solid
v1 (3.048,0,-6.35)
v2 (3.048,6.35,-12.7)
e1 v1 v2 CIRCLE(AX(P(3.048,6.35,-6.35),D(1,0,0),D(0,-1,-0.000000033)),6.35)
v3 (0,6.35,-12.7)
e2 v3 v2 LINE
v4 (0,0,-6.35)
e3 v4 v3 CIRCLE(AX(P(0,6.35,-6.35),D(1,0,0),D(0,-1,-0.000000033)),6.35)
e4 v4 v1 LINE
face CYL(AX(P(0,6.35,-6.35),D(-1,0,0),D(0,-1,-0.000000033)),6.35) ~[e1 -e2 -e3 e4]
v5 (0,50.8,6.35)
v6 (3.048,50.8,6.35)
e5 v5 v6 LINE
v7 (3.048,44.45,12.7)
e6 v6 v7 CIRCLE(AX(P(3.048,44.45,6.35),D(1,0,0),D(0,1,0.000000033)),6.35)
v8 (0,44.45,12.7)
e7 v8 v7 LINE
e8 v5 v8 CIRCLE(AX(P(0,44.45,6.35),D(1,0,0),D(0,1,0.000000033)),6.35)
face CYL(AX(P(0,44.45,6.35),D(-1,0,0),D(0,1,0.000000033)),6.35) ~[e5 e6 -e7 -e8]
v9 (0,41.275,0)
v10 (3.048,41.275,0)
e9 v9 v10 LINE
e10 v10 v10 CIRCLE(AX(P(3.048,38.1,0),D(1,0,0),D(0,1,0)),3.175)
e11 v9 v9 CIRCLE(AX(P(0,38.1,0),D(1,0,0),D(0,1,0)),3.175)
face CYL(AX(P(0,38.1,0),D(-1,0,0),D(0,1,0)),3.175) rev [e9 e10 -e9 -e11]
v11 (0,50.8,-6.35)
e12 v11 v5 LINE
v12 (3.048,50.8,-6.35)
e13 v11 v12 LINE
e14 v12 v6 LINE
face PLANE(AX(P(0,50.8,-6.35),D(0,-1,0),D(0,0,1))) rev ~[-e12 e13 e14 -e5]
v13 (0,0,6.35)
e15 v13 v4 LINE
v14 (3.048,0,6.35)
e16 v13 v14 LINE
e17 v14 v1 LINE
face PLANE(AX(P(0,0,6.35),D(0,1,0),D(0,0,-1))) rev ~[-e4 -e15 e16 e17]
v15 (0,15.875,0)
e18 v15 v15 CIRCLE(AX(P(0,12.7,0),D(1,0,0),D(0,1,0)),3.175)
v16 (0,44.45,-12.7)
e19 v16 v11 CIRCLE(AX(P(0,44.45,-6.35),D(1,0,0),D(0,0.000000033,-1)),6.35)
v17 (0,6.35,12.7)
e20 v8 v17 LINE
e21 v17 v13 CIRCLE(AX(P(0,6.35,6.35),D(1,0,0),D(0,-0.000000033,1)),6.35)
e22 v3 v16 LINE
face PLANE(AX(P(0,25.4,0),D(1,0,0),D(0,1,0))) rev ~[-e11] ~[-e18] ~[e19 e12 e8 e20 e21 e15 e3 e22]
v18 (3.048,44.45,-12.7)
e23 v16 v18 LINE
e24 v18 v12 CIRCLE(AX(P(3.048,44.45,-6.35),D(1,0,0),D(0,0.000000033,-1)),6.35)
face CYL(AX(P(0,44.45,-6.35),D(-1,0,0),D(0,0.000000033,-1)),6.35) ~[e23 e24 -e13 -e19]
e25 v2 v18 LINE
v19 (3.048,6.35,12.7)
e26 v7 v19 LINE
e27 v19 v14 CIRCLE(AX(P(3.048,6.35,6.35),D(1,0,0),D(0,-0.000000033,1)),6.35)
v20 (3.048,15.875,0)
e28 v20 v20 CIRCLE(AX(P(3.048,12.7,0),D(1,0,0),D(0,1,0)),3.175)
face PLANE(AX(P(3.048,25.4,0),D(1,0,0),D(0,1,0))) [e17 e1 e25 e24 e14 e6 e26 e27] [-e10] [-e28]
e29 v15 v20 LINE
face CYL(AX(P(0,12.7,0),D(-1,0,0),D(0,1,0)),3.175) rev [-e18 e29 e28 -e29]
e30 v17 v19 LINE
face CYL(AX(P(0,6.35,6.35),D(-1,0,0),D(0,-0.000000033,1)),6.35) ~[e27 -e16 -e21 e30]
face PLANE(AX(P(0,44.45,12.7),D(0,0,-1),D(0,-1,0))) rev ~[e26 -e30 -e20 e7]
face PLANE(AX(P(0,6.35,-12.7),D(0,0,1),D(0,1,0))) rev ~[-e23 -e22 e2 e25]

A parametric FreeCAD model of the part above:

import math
import FreeCAD as App
import Part
import Sketcher
Q = App.Units.Quantity

doc = App.newDocument("Part")
body = doc.addObject("PartDesign::Body", "Body")

sketch1 = body.newObject("Sketcher::SketchObject", "Sketch")
sketch1.AttachmentSupport = (doc.getObject("YZ_Plane"), [""])
sketch1.MapMode = "FlatFace"
sketch1.addGeometry([
    Part.ArcOfCircle(Part.Circle(App.Vector(44.4, 6.3, 0), App.Vector(0, 0, 1), 6.4), math.radians(0), math.radians(90)),
    Part.LineSegment(App.Vector(44.5, 12.7, 0), App.Vector(6.3, 12.7, 0)),
    Part.ArcOfCircle(Part.Circle(App.Vector(6.4, 6.3, 0), App.Vector(0, 0, 1), 6.4), math.radians(90), math.radians(180)),
    Part.LineSegment(App.Vector(0, 6.3, 0), App.Vector(0, -6.3, 0)),
    Part.ArcOfCircle(Part.Circle(App.Vector(6.4, -6.3, 0), App.Vector(0, 0, 1), 6.4), math.radians(-180), math.radians(-90)),
    Part.LineSegment(App.Vector(6.3, -12.7, 0), App.Vector(44.5, -12.7, 0)),
    Part.ArcOfCircle(Part.Circle(App.Vector(44.4, -6.3, 0), App.Vector(0, 0, 1), 6.4), math.radians(-90), math.radians(0)),
    Part.LineSegment(App.Vector(50.8, -6.3, 0), App.Vector(50.8, 6.3, 0)),
    Part.Circle(App.Vector(12.7, 0, 0), App.Vector(0, 0, 1), 3.2),
    Part.Circle(App.Vector(38.1, 0, 0), App.Vector(0, 0, 1), 3.2),
], False)
sketch1.addConstraint([
    Sketcher.Constraint("Tangent", 0, 2, 1, 1),
    Sketcher.Constraint("Tangent", 1, 2, 2, 1),
    Sketcher.Constraint("Tangent", 2, 2, 3, 1),
    Sketcher.Constraint("Tangent", 3, 2, 4, 1),
    Sketcher.Constraint("Tangent", 4, 2, 5, 1),
    Sketcher.Constraint("Tangent", 5, 2, 6, 1),
    Sketcher.Constraint("Tangent", 6, 2, 7, 1),
    Sketcher.Constraint("Tangent", 7, 2, 0, 1),
    Sketcher.Constraint("Horizontal", 1),
    Sketcher.Constraint("Vertical", 3),
    Sketcher.Constraint("Horizontal", 5),
    Sketcher.Constraint("Vertical", 7),
    Sketcher.Constraint("Equal", 0, 2),
    Sketcher.Constraint("Equal", 2, 4),
    Sketcher.Constraint("Equal", 4, 6),
    Sketcher.Constraint("Equal", 8, 9),
    Sketcher.Constraint("Symmetric", 2, 2, 3, 2, -1, 1),
    Sketcher.Constraint("PointOnObject", 8, 3, -1),
    Sketcher.Constraint("PointOnObject", 9, 3, -1),
    Sketcher.Constraint("Diameter", 8, Q("0.25 in")),
    Sketcher.Constraint("Radius", 0, Q("0.25 in")),
    Sketcher.Constraint("DistanceX", 1, 2, 1, 1, Q("1.5 in")),
    Sketcher.Constraint("DistanceY", 3, 2, 3, 1, Q("0.5 in")),
    Sketcher.Constraint("DistanceX", 8, 3, 9, 3, Q("1 in")),
    Sketcher.Constraint("DistanceX", -1, 1, 8, 3, Q("0.5 in")),
])
pad1 = body.newObject("PartDesign::Pad", "Pad")
pad1.Profile = sketch1
pad1.Length = Q("0.12 in")

doc.recompute()
